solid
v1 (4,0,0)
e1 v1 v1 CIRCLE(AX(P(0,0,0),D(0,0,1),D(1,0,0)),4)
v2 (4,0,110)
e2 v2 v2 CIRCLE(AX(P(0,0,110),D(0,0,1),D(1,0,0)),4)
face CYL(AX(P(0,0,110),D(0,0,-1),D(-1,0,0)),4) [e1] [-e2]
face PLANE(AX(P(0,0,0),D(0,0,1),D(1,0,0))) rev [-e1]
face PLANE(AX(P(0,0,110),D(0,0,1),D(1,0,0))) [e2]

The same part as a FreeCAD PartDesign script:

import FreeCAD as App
import Part
import Sketcher

V = App.Vector
Q = App.Units.Quantity

doc = App.newDocument("Part")
params = doc.addObject("Spreadsheet::Sheet", "Params")
for row, (alias, value) in enumerate([
    ("sketch1_diameter", "8 mm"),
    ("pad1_length", "110 mm"),
], start=1):
    params.set(f"A{row}", alias)
    params.set(f"B{row}", "=" + value)
    params.setAlias(f"B{row}", alias)

body = doc.addObject("PartDesign::Body", "Body")

# Sketch on XY plane
sketch1 = body.newObject("Sketcher::SketchObject", "Sketch")
sketch1.AttachmentSupport = (doc.getObject("XY_Plane"), [""])
sketch1.MapMode = "FlatFace"
sketch1.addGeometry(Part.Circle(V(0, 0, 0), V(0, 0, 1), 4), False)
sketch1.addConstraint([
    Sketcher.Constraint("Coincident", 0, 3, -1, 1),
    Sketcher.Constraint("Diameter", 0, Q("8 mm")),
])
sketch1.setExpression("Constraints[1]", "Params.sketch1_diameter")
pad1 = body.newObject("PartDesign::Pad", "Pad")
pad1.Profile = sketch1
pad1.setExpression("Length", "Params.pad1_length")

doc.recompute()
